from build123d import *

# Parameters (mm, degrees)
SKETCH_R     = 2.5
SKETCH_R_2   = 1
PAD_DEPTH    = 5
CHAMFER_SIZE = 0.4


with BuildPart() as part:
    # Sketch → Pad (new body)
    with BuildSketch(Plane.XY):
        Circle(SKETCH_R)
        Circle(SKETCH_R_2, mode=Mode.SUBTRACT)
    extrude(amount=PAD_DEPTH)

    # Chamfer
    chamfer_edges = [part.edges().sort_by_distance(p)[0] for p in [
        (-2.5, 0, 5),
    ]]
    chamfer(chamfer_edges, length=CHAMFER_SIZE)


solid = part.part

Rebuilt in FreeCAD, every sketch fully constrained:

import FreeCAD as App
import Part
import Sketcher

V = App.Vector
Q = App.Units.Quantity


def edges_at(feature, points):
    """Names of the edges that pass closest to the given points."""
    edges = feature.Shape.Edges
    near = lambda p: min(range(len(edges)), key=lambda i: edges[i].distToShape(Part.Vertex(*p))[0])
    return sorted({f"Edge{near(p) + 1}" for p in points})

doc = App.newDocument("Part")
body = doc.addObject("PartDesign::Body", "Body")

# Sketch on XY plane
sketch1 = body.newObject("Sketcher::SketchObject", "Sketch")
sketch1.AttachmentSupport = (doc.getObject("XY_Plane"), [""])
sketch1.MapMode = "FlatFace"
sketch1.addGeometry([
    Part.Circle(V(0, 0, 0), V(0, 0, 1), 2.5),
    Part.Circle(V(0, 0, 0), V(0, 0, 1), 1),
], False)
sketch1.addConstraint([
    Sketcher.Constraint("Coincident", 0, 3, -1, 1),
    Sketcher.Constraint("Coincident", 1, 3, -1, 1),
    Sketcher.Constraint("Diameter", 0, Q("5 mm")),
    Sketcher.Constraint("Diameter", 1, Q("2 mm")),
])
pad1 = body.newObject("PartDesign::Pad", "Pad")
pad1.Profile = sketch1
pad1.Length = 5
doc.recompute()

chamfer = body.newObject("PartDesign::Chamfer", "Chamfer")
chamfer.Base = (pad1, edges_at(pad1, [(-2.5, 0, 5)]))
chamfer.Size = 0.4

doc.recompute()
